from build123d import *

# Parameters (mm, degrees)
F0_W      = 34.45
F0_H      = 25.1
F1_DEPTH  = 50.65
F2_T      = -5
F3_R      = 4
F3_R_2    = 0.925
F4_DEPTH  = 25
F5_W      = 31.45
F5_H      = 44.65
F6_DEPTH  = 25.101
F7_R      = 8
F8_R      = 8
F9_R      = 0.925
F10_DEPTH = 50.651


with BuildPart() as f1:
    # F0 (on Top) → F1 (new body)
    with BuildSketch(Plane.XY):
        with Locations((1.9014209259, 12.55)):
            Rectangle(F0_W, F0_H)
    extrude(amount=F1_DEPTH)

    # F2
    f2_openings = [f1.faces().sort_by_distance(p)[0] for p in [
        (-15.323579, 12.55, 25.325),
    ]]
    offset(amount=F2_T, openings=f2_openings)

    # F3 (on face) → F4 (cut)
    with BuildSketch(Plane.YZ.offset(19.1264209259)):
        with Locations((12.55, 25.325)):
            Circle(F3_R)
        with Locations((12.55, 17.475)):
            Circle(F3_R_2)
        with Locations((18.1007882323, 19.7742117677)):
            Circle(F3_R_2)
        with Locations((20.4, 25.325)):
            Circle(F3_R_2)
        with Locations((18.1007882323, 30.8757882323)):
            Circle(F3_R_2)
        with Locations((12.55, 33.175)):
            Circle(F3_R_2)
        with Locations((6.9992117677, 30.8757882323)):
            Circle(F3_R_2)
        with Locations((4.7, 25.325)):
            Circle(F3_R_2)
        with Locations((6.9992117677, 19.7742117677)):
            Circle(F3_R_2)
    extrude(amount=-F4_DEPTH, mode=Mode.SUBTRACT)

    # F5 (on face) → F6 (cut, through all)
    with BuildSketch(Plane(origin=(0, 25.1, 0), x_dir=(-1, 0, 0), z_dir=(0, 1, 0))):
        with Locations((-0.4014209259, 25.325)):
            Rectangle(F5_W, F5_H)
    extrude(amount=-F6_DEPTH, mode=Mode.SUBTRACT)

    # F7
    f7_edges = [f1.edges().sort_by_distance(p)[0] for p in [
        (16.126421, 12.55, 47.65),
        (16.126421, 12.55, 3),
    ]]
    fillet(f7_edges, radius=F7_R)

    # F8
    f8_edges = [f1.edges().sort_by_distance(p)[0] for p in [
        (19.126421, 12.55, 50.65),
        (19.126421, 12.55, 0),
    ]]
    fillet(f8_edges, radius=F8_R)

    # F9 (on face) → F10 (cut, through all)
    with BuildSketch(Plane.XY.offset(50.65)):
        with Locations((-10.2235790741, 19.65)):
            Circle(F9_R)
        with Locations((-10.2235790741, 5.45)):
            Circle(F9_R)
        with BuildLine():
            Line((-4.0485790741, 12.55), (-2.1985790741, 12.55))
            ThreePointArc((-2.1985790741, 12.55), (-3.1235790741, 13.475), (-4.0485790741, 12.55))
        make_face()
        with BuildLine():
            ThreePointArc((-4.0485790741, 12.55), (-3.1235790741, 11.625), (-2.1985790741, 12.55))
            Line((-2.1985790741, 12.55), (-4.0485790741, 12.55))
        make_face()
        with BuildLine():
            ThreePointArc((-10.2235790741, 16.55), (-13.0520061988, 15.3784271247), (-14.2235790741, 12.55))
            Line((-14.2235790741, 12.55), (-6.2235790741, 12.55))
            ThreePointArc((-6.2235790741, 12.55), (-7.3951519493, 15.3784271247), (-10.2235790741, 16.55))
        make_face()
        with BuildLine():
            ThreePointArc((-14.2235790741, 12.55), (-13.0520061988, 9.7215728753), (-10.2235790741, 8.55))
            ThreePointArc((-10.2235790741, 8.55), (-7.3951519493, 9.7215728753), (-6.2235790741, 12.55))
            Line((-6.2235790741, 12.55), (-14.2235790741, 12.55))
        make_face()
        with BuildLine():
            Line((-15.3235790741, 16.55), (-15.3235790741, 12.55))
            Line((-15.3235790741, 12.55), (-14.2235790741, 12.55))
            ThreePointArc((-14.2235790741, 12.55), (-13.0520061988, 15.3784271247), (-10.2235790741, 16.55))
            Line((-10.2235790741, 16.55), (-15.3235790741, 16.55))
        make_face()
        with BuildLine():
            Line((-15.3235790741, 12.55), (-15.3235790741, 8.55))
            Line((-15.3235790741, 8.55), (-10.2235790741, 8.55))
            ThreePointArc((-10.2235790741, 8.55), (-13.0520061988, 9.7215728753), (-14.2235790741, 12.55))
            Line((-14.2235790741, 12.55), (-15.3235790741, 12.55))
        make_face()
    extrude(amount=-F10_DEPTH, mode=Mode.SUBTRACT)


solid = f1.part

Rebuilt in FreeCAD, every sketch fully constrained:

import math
import FreeCAD as App
import Part
import Sketcher


def edges_at(feature, points):
    """Names of the edges that pass closest to the given points."""
    edges = feature.Shape.Edges
    near = lambda p: min(range(len(edges)), key=lambda i: edges[i].distToShape(Part.Vertex(*p))[0])
    return sorted({f"Edge{near(p) + 1}" for p in points})


def faces_at(feature, points):
    """Names of the faces that lie closest to the given points."""
    faces = feature.Shape.Faces
    near = lambda p: min(range(len(faces)), key=lambda i: faces[i].distToShape(Part.Vertex(*p))[0])
    return sorted({f"Face{near(p) + 1}" for p in points})

doc = App.newDocument("Part")
body = doc.addObject("PartDesign::Body", "Body")

# Sketch on XY plane
sketch1 = body.newObject("Sketcher::SketchObject", "Sketch")
sketch1.AttachmentSupport = (doc.getObject("XY_Plane"), [""])
sketch1.MapMode = "FlatFace"
sketch1.addGeometry([
    Part.LineSegment(App.Vector(-15, 25, 0), App.Vector(-15, 0, 0)),
    Part.LineSegment(App.Vector(-15, 0, 0), App.Vector(19, 0, 0)),
    Part.LineSegment(App.Vector(19, 0, 0), App.Vector(19, 25, 0)),
    Part.LineSegment(App.Vector(19, 25, 0), App.Vector(-15, 25, 0)),
], False)
sketch1.addConstraint([
    Sketcher.Constraint("Coincident", 0, 2, 1, 1),
    Sketcher.Constraint("Coincident", 1, 2, 2, 1),
    Sketcher.Constraint("Coincident", 2, 2, 3, 1),
    Sketcher.Constraint("Coincident", 3, 2, 0, 1),
    Sketcher.Constraint("Vertical", 0),
    Sketcher.Constraint("Horizontal", 1),
    Sketcher.Constraint("Vertical", 2),
    Sketcher.Constraint("Horizontal", 3),
    Sketcher.Constraint("PointOnObject", 0, 2, -1),
    Sketcher.Constraint("DistanceY", 0, 2, 0, 1, 25.1),
    Sketcher.Constraint("DistanceX", 1, 1, 1, 2, 34.45),
    Sketcher.Constraint("DistanceX", 0, 2, -1, 1, 15.323579),
])
pad1 = body.newObject("PartDesign::Pad", "Pad")
pad1.Profile = sketch1
pad1.Length = 50.65
doc.recompute()

thickness = body.newObject("PartDesign::Thickness", "Thickness")
thickness.Base = (pad1, faces_at(pad1, [(-15.324, 12.55, 25.325)]))
thickness.Value = 5
thickness.Reversed = True
thickness.Join = "Arc"

# Sketch on YZ plane
sketch2 = body.newObject("Sketcher::SketchObject", "Sketch001")
sketch2.AttachmentSupport = (doc.getObject("YZ_Plane"), [""])
sketch2.MapMode = "FlatFace"
sketch2.AttachmentOffset = App.Placement(App.Vector(0, 0, 19.126421), App.Rotation())
sketch2.addGeometry([
    Part.Circle(App.Vector(12.6, 25.3, 0), App.Vector(0, 0, 1), 4),  # 0
    Part.Circle(App.Vector(12.6, 17.5, 0), App.Vector(0, 0, 1), 0.9),  # 1
    Part.Circle(App.Vector(18.1, 19.8, 0), App.Vector(0, 0, 1), 0.9),  # 2
    Part.Circle(App.Vector(20.4, 25.3, 0), App.Vector(0, 0, 1), 0.9),  # 3
    Part.Circle(App.Vector(18.1, 30.9, 0), App.Vector(0, 0, 1), 0.9),  # 4
    Part.Circle(App.Vector(12.6, 33.2, 0), App.Vector(0, 0, 1), 0.9),  # 5
    Part.Circle(App.Vector(7, 30.9, 0), App.Vector(0, 0, 1), 0.9),  # 6
    Part.Circle(App.Vector(4.7, 25.3, 0), App.Vector(0, 0, 1), 0.9),  # 7
    Part.Circle(App.Vector(7, 19.8, 0), App.Vector(0, 0, 1), 0.9),  # 8
], False)
sketch2.addConstraint([
    Sketcher.Constraint("Equal", 1, 2),
    Sketcher.Constraint("Equal", 2, 3),
    Sketcher.Constraint("Equal", 3, 4),
    Sketcher.Constraint("Equal", 4, 5),
    Sketcher.Constraint("Equal", 5, 6),
    Sketcher.Constraint("Equal", 6, 7),
    Sketcher.Constraint("Equal", 7, 8),
    Sketcher.Constraint("Horizontal", 0, 3, 3, 3),
    Sketcher.Constraint("Horizontal", 4, 3, 6, 3),
    Sketcher.Constraint("Horizontal", 3, 3, 7, 3),
    Sketcher.Constraint("Horizontal", 2, 3, 8, 3),
    Sketcher.Constraint("Vertical", 0, 3, 1, 3),
    Sketcher.Constraint("Vertical", 2, 3, 4, 3),
    Sketcher.Constraint("Vertical", 1, 3, 5, 3),
    Sketcher.Constraint("Vertical", 6, 3, 8, 3),
    Sketcher.Constraint("Diameter", 0, 8.0),
    Sketcher.Constraint("Diameter", 1, 1.85),
    Sketcher.Constraint("DistanceX", -1, 1, 3, 3, 20.4),
    Sketcher.Constraint("DistanceX", -1, 1, 7, 3, 4.7),
    Sketcher.Constraint("DistanceY", 1, 3, 5, 3, 15.7),
    Sketcher.Constraint("DistanceX", -1, 1, 0, 3, 12.55),
    Sketcher.Constraint("DistanceY", 1, 3, 0, 3, 7.85),
    Sketcher.Constraint("DistanceY", -1, 1, 0, 3, 25.325),
    Sketcher.Constraint("DistanceX", -1, 1, 2, 3, 18.100788),
    Sketcher.Constraint("DistanceY", -1, 1, 2, 3, 19.774212),
    Sketcher.Constraint("DistanceY", -1, 1, 4, 3, 30.875788),
    Sketcher.Constraint("DistanceX", -1, 1, 6, 3, 6.999212),
])
pocket1 = body.newObject("PartDesign::Pocket", "Pocket")
pocket1.Profile = sketch2
pocket1.Length = 25

# Sketch on XZ plane
sketch3 = body.newObject("Sketcher::SketchObject", "Sketch002")
sketch3.AttachmentSupport = (doc.getObject("XZ_Plane"), [""])
sketch3.MapMode = "FlatFace"
sketch3.AttachmentOffset = App.Placement(App.Vector(0, 0, -25.1), App.Rotation())
sketch3.addGeometry([
    Part.LineSegment(App.Vector(16, 48, 0), App.Vector(16, 3, 0)),
    Part.LineSegment(App.Vector(16, 3, 0), App.Vector(-15, 3, 0)),
    Part.LineSegment(App.Vector(-15, 3, 0), App.Vector(-15, 48, 0)),
    Part.LineSegment(App.Vector(-15, 48, 0), App.Vector(16, 48, 0)),
], False)
sketch3.addConstraint([
    Sketcher.Constraint("Coincident", 0, 2, 1, 1),
    Sketcher.Constraint("Coincident", 1, 2, 2, 1),
    Sketcher.Constraint("Coincident", 2, 2, 3, 1),
    Sketcher.Constraint("Coincident", 3, 2, 0, 1),
    Sketcher.Constraint("Vertical", 0),
    Sketcher.Constraint("Horizontal", 1),
    Sketcher.Constraint("Vertical", 2),
    Sketcher.Constraint("Horizontal", 3),
    Sketcher.Constraint("DistanceY", -1, 1, 0, 2, 3.0),
    Sketcher.Constraint("DistanceX", 1, 2, 1, 1, 31.45),
    Sketcher.Constraint("DistanceY", 0, 2, 0, 1, 44.65),
    Sketcher.Constraint("DistanceX", -1, 1, 0, 2, 16.126421),
])
pocket2 = body.newObject("PartDesign::Pocket", "Pocket001")
pocket2.Profile = sketch3
pocket2.Type = "ThroughAll"
pocket2.Reversed = True
doc.recompute()

fillet = body.newObject("PartDesign::Fillet", "Fillet")
fillet.Base = (pocket2, edges_at(pocket2, [(16.126, 12.55, 47.65), (16.126, 12.55, 3)]))
fillet.Radius = 8
doc.recompute()

fillet2 = body.newObject("PartDesign::Fillet", "Fillet001")
fillet2.Base = (fillet, edges_at(fillet, [(19.126, 12.55, 50.65), (19.126, 12.55, 0)]))
fillet2.Radius = 8

# Sketch on XY plane
sketch4 = body.newObject("Sketcher::SketchObject", "Sketch003")
sketch4.AttachmentSupport = (doc.getObject("XY_Plane"), [""])
sketch4.MapMode = "FlatFace"
sketch4.AttachmentOffset = App.Placement(App.Vector(0, 0, 50.65), App.Rotation())
sketch4.addGeometry([
    Part.Circle(App.Vector(-10.2, 19.6, 0), App.Vector(0, 0, 1), 0.9),  # 0
    Part.Circle(App.Vector(-10.2, 5.5, 0), App.Vector(0, 0, 1), 0.9),  # 1
    Part.Circle(App.Vector(-3.1, 12.6, 0), App.Vector(0, 0, 1), 0.9),  # 2
    Part.ArcOfCircle(Part.Circle(App.Vector(-10.2, 12.6, 0), App.Vector(0, 0, 1), 4), math.radians(-90), math.radians(0)),  # 3
    Part.ArcOfCircle(Part.Circle(App.Vector(-10.2, 12.6, 0), App.Vector(0, 0, 1), 4), math.radians(0), math.radians(90)),  # 4
    Part.LineSegment(App.Vector(-10.2, 16.6, 0), App.Vector(-15.3, 16.6, 0)),  # 5
    Part.LineSegment(App.Vector(-15.3, 16.6, 0), App.Vector(-15.3, 8.6, 0)),  # 6
    Part.LineSegment(App.Vector(-15.3, 8.6, 0), App.Vector(-10.2, 8.6, 0)),  # 7
], False)
sketch4.addConstraint([
    Sketcher.Constraint("Tangent", 3, 2, 4, 1),
    Sketcher.Constraint("Tangent", 4, 2, 5, 1),
    Sketcher.Constraint("Coincident", 5, 2, 6, 1),
    Sketcher.Constraint("Coincident", 6, 2, 7, 1),
    Sketcher.Constraint("Tangent", 7, 2, 3, 1),
    Sketcher.Constraint("Horizontal", 5),
    Sketcher.Constraint("Vertical", 6),
    Sketcher.Constraint("Horizontal", 7),
    Sketcher.Constraint("Equal", 0, 1),
    Sketcher.Constraint("Equal", 1, 2),
    Sketcher.Constraint("Equal", 3, 4),
    Sketcher.Constraint("Horizontal", 2, 3, 3, 3),
    Sketcher.Constraint("Horizontal", 4, 3, 3, 2),
    Sketcher.Constraint("Vertical", 0, 3, 1, 3),
    Sketcher.Constraint("Vertical", 1, 3, 3, 3),
    Sketcher.Constraint("Radius", 3, 4.0),
    Sketcher.Constraint("Diameter", 0, 1.85),
    Sketcher.Constraint("DistanceX", 5, 2, 5, 1, 5.1),
    Sketcher.Constraint("DistanceY", 1, 3, 0, 3, 14.2),
    Sketcher.Constraint("DistanceX", 0, 3, 2, 3, 7.1),
    Sketcher.Constraint("DistanceY", 2, 3, 0, 3, 7.1),
    Sketcher.Constraint("DistanceY", -1, 1, 0, 3, 19.65),
    Sketcher.Constraint("DistanceX", 0, 3, -1, 1, 10.223579),
])
pocket3 = body.newObject("PartDesign::Pocket", "Pocket002")
pocket3.Profile = sketch4
pocket3.Type = "ThroughAll"

doc.recompute()
